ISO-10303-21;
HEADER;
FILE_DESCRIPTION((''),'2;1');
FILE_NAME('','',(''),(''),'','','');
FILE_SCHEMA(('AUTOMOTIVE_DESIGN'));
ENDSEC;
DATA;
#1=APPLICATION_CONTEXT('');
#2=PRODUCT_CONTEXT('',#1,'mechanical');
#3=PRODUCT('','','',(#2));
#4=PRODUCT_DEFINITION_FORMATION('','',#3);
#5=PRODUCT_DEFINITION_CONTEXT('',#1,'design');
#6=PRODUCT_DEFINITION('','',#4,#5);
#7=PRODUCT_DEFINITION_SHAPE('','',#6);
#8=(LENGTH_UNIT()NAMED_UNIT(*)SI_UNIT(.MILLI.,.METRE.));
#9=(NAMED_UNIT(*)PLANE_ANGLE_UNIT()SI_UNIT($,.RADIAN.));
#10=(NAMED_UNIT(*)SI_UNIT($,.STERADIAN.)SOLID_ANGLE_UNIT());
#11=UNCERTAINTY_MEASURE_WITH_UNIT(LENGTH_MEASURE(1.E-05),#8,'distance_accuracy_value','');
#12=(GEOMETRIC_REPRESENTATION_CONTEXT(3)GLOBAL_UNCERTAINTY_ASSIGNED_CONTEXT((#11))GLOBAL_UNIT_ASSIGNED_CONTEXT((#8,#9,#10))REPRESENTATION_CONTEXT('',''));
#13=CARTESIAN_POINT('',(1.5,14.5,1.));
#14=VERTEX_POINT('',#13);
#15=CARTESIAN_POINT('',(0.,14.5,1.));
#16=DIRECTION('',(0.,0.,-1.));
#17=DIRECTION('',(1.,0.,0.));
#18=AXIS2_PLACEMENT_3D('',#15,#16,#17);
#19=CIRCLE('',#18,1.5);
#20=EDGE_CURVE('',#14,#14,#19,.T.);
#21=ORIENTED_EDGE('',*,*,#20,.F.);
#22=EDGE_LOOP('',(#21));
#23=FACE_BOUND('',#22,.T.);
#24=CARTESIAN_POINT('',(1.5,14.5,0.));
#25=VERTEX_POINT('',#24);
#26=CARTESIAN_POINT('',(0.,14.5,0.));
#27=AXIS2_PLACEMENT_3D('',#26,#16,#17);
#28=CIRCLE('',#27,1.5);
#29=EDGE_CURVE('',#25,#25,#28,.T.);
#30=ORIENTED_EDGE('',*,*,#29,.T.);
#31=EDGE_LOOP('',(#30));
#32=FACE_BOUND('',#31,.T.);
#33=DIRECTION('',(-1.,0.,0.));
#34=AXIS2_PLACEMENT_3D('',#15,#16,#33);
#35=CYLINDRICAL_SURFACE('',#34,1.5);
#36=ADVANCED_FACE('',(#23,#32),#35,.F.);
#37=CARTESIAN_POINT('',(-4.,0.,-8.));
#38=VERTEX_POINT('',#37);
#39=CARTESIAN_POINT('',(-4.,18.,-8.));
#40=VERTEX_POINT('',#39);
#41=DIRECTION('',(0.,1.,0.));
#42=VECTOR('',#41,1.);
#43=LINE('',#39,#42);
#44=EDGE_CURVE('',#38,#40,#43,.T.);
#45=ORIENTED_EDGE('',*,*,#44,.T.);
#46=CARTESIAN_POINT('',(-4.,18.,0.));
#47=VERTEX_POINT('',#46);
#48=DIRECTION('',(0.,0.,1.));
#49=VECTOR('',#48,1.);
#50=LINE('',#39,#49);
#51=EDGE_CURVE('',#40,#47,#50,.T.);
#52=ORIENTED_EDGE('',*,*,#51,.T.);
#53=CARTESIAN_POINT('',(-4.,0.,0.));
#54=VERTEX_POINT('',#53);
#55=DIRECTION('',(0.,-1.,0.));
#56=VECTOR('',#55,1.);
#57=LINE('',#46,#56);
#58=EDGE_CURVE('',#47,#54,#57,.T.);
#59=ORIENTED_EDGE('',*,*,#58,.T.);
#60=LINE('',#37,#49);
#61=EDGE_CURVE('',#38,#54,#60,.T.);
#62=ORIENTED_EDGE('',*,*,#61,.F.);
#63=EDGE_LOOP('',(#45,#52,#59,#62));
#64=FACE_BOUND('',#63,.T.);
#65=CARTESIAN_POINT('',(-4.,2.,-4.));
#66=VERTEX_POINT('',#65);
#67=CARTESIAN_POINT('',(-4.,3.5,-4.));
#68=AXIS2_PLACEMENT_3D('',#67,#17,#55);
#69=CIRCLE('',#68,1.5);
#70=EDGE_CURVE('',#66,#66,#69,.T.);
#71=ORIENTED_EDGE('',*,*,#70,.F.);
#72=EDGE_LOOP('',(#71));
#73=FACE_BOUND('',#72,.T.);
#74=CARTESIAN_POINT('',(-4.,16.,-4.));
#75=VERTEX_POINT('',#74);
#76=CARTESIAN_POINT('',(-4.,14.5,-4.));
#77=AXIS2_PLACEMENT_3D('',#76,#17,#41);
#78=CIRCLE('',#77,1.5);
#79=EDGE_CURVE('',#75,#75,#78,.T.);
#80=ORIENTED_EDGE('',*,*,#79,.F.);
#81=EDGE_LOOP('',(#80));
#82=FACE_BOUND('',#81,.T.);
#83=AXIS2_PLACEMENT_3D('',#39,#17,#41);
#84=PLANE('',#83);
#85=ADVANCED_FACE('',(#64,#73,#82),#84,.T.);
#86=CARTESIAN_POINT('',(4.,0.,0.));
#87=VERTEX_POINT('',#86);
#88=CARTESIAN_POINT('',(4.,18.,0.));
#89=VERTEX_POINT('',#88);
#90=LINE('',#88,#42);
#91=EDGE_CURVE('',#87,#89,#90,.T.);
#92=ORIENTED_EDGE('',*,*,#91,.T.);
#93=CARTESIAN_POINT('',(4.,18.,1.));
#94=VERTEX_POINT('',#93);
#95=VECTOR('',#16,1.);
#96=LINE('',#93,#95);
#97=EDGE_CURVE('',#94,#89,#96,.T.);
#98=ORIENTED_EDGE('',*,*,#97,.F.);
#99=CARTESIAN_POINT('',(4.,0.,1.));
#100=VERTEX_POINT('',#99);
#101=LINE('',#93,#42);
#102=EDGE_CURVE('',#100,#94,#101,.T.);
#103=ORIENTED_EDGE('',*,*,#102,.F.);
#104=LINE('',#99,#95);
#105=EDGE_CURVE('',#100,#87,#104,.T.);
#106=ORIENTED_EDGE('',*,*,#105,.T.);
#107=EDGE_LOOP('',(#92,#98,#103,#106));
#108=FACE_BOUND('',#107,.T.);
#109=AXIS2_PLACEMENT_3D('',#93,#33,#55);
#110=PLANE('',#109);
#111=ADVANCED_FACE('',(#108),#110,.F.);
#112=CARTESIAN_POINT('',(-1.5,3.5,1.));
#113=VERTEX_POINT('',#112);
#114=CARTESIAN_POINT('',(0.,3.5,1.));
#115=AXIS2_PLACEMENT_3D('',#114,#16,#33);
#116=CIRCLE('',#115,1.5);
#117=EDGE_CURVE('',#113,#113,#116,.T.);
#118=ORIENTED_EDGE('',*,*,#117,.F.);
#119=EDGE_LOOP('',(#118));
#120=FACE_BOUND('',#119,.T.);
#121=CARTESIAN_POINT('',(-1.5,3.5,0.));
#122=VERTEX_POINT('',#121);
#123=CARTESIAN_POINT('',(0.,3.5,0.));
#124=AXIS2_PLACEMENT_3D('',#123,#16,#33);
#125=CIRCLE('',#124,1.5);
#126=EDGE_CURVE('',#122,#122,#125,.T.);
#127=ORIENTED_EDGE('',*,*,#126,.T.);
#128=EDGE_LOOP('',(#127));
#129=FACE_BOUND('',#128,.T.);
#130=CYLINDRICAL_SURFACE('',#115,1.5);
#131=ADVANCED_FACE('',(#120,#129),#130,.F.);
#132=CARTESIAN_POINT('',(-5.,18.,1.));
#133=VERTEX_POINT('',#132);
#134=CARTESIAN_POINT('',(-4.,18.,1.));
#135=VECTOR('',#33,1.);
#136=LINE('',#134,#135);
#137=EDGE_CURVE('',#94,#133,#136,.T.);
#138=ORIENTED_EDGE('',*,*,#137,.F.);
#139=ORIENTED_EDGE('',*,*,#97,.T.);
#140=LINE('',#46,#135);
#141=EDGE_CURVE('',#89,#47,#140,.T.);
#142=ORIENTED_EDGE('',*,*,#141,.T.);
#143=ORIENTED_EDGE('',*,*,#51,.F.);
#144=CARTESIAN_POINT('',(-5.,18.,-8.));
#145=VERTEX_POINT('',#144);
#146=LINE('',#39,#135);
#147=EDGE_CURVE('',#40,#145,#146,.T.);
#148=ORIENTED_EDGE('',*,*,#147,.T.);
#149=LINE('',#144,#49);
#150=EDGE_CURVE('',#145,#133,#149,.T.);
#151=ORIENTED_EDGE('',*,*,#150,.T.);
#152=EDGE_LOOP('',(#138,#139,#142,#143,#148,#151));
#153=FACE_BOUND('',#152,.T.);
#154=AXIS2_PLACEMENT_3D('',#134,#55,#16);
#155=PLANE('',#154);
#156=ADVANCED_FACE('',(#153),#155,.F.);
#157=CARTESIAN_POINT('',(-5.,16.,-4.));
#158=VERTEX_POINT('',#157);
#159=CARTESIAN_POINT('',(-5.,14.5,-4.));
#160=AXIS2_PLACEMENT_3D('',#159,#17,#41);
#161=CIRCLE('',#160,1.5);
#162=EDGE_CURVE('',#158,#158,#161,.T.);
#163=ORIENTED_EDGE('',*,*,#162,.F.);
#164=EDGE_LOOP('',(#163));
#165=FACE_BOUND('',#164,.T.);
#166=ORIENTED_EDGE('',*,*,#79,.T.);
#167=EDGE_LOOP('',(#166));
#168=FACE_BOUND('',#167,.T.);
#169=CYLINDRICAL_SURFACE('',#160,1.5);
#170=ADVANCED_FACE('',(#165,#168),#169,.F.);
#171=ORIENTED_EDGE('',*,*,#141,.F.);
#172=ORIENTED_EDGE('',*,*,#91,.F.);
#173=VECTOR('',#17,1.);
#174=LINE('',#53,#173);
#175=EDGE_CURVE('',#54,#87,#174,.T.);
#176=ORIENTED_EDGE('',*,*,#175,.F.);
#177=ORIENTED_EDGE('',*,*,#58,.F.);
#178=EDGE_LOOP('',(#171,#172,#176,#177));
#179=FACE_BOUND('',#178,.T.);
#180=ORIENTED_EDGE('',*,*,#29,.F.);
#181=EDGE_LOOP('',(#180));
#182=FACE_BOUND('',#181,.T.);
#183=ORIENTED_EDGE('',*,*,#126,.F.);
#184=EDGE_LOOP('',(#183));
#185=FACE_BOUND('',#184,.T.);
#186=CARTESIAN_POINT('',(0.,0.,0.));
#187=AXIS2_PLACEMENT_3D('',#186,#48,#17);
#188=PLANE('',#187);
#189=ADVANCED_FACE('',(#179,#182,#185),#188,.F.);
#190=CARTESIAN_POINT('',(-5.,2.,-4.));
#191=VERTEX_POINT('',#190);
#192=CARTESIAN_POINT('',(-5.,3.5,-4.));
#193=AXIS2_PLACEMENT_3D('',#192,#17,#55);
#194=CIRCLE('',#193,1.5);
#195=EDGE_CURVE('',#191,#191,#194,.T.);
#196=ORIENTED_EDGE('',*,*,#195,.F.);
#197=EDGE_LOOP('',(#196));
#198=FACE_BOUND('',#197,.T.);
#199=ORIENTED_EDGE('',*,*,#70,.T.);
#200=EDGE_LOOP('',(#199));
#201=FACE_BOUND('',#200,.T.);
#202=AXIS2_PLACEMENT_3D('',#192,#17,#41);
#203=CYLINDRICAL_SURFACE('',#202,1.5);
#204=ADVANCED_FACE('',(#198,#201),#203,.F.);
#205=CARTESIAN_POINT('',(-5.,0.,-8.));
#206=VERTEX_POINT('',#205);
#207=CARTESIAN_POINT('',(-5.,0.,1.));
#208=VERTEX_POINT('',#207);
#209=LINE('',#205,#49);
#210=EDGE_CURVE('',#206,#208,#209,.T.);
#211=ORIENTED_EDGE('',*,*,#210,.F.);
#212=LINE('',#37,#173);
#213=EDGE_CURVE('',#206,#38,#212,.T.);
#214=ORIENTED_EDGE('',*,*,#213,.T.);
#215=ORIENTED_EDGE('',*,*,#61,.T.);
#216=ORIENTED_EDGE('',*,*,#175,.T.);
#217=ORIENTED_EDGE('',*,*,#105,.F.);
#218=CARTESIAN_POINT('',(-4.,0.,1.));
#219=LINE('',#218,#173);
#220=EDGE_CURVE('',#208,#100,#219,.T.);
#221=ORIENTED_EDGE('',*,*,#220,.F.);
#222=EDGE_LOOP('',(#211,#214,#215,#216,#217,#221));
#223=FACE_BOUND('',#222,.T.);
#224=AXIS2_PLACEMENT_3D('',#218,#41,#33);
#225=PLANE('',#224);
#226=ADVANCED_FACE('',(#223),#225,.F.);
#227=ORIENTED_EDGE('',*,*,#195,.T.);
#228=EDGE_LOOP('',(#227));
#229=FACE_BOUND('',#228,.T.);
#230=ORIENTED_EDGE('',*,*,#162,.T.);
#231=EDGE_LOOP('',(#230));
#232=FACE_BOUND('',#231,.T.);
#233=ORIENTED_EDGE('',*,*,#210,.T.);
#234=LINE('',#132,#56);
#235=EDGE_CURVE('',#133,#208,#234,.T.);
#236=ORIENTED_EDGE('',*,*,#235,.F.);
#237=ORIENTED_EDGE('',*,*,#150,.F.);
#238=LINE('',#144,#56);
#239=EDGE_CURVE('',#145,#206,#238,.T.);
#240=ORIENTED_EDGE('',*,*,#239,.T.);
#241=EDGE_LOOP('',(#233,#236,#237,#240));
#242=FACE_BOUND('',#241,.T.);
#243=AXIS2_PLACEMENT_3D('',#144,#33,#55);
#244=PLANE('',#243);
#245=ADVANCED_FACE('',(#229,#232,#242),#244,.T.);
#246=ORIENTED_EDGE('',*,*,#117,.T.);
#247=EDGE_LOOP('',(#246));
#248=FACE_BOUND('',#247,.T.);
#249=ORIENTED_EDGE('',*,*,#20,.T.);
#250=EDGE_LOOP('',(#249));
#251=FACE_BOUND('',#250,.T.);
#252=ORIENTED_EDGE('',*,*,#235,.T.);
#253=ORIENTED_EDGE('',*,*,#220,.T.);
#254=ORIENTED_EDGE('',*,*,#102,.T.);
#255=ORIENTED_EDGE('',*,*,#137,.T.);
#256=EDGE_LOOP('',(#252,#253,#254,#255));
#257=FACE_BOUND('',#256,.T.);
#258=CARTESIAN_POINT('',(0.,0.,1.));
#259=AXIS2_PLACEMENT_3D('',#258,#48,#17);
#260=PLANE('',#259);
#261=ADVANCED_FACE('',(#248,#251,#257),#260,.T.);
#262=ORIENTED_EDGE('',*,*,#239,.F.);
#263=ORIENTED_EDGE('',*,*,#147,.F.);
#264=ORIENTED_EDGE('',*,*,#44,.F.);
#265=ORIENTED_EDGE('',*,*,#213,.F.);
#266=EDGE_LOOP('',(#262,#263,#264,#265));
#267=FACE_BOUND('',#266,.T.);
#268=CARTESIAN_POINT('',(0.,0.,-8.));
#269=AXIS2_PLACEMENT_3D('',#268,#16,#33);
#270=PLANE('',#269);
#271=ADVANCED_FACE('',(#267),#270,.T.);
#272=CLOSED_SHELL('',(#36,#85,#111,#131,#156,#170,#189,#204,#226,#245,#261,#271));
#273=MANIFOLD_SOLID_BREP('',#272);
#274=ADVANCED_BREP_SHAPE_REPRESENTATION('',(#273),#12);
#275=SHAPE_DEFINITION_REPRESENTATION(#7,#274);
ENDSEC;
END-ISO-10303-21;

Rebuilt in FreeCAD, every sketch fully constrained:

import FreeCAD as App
import Part
import Sketcher

V = App.Vector
Q = App.Units.Quantity


def add_polygon(sketch, points):
    """Adds a closed chain of lines whose ends are joined by coincident constraints."""
    first, n = sketch.GeometryCount, len(points)
    for a, b in zip(points, points[1:] + points[:1]):
        sketch.addGeometry(Part.LineSegment(App.Vector(*a, 0), App.Vector(*b, 0)), False)
    for i in range(n):
        sketch.addConstraint(Sketcher.Constraint("Coincident", first + i, 2, first + (i + 1) % n, 1))

doc = App.newDocument("Part")
body = doc.addObject("PartDesign::Body", "Body")

sketch1 = body.newObject("Sketcher::SketchObject", "Sketch")
sketch1.AttachmentSupport = (doc.getObject("XY_Plane"), [""])
sketch1.MapMode = "FlatFace"
add_polygon(sketch1, [(-4, 18), (-4, 0), (4, 0), (4, 18)])
sketch1.addConstraint([
    Sketcher.Constraint("Vertical", 0),
    Sketcher.Constraint("Horizontal", 1),
    Sketcher.Constraint("Vertical", 2),
    Sketcher.Constraint("Horizontal", 3),
    Sketcher.Constraint("Symmetric", 0, 2, 1, 2, -1, 1),
    Sketcher.Constraint("DistanceX", 1, 1, 1, 2, Q("8 mm")),
    Sketcher.Constraint("DistanceY", 0, 2, 0, 1, Q("18 mm")),
])
pad1 = body.newObject("PartDesign::Pad", "Pad")
pad1.Profile = sketch1
pad1.Length = 1

sketch2 = body.newObject("Sketcher::SketchObject", "Sketch001")
sketch2.AttachmentSupport = (doc.getObject("XY_Plane"), [""])
sketch2.MapMode = "FlatFace"
sketch2.AttachmentOffset = App.Placement(V(0, 0, 1), App.Rotation())
add_polygon(sketch2, [(-5, 18), (-5, 0), (-4, 0), (-4, 18)])
sketch2.addConstraint([
    Sketcher.Constraint("Vertical", 0),
    Sketcher.Constraint("Horizontal", 1),
    Sketcher.Constraint("Vertical", 2),
    Sketcher.Constraint("Horizontal", 3),
    Sketcher.Constraint("PointOnObject", 0, 2, -1),
    Sketcher.Constraint("DistanceX", 1, 1, 1, 2, Q("1 mm")),
    Sketcher.Constraint("DistanceY", 0, 2, 0, 1, Q("18 mm")),
    Sketcher.Constraint("DistanceX", 0, 2, -1, 1, Q("5 mm")),
])
pad2 = body.newObject("PartDesign::Pad", "Pad001")
pad2.Profile = sketch2
pad2.Length = 9
pad2.Reversed = True

sketch3 = body.newObject("Sketcher::SketchObject", "Sketch002")
sketch3.AttachmentSupport = (doc.getObject("YZ_Plane"), [""])
sketch3.MapMode = "FlatFace"
sketch3.AttachmentOffset = App.Placement(V(0, 0, -4), App.Rotation())
sketch3.addGeometry([
    Part.Circle(V(14.5, -4, 0), V(0, 0, 1), 1.5),
    Part.Circle(V(3.5, -4, 0), V(0, 0, 1), 1.5),
], False)
sketch3.addConstraint([
    Sketcher.Constraint("Equal", 0, 1),
    Sketcher.Constraint("Horizontal", 0, 3, 1, 3),
    Sketcher.Constraint("Diameter", 0, Q("3 mm")),
    Sketcher.Constraint("DistanceY", 0, 3, -1, 1, Q("4 mm")),
    Sketcher.Constraint("DistanceX", 1, 3, 0, 3, Q("11 mm")),
    Sketcher.Constraint("DistanceX", -1, 1, 0, 3, Q("14.5 mm")),
])
pocket1 = body.newObject("PartDesign::Pocket", "Pocket")
pocket1.Profile = sketch3
pocket1.Type = "ThroughAll"

sketch4 = body.newObject("Sketcher::SketchObject", "Sketch003")
sketch4.AttachmentSupport = (doc.getObject("XY_Plane"), [""])
sketch4.MapMode = "FlatFace"
sketch4.addGeometry([
    Part.Circle(V(0, 3.5, 0), V(0, 0, 1), 1.5),
    Part.Circle(V(0, 14.5, 0), V(0, 0, 1), 1.5),
], False)
sketch4.addConstraint([
    Sketcher.Constraint("Equal", 0, 1),
    Sketcher.Constraint("PointOnObject", 0, 3, -2),
    Sketcher.Constraint("PointOnObject", 1, 3, -2),
    Sketcher.Constraint("Diameter", 0, Q("3 mm")),
    Sketcher.Constraint("DistanceY", 0, 3, 1, 3, Q("11 mm")),
    Sketcher.Constraint("DistanceY", -1, 1, 0, 3, Q("3.5 mm")),
])
pocket2 = body.newObject("PartDesign::Pocket", "Pocket001")
pocket2.Profile = sketch4
pocket2.Type = "ThroughAll"
pocket2.Reversed = True

doc.recompute()
